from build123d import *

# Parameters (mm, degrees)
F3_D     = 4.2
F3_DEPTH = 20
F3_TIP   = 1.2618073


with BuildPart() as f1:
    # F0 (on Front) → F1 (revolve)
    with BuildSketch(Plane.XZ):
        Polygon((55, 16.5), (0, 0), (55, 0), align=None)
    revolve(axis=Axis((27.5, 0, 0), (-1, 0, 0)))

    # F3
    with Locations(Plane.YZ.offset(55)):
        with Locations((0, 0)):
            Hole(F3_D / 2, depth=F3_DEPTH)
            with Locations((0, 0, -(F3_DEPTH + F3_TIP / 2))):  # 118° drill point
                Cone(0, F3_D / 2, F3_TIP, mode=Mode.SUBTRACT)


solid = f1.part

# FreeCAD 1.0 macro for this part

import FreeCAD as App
import Part
import Sketcher
from FreeCAD import Vector

doc = App.newDocument("Part")
body = doc.addObject("PartDesign::Body", "Body")

# Sketch on XZ plane
sketch1 = doc.addObject("Sketcher::SketchObject", "Sketch")
body.addObject(sketch1)
sketch1.AttachmentSupport = (doc.XZ_Plane, [""])
sketch1.MapMode = "FlatFace"
sketch1.addGeometry([
    Part.LineSegment(Vector(55, 16, 0), Vector(0, 0, 0)),
    Part.LineSegment(Vector(0, 0, 0), Vector(55, 0, 0)),
    Part.LineSegment(Vector(55, 0, 0), Vector(55, 16, 0)),
], False)
sketch1.addConstraint([
    Sketcher.Constraint("Coincident", 0, 2, 1, 1),
    Sketcher.Constraint("Coincident", 1, 2, 2, 1),
    Sketcher.Constraint("Coincident", 2, 2, 0, 1),
    Sketcher.Constraint("Horizontal", 1),
    Sketcher.Constraint("Vertical", 2),
    Sketcher.Constraint("Coincident", 0, 2, -1, 1),
    Sketcher.Constraint("DistanceX", 1, 1, 1, 2, 55.0),
    Sketcher.Constraint("DistanceY", 2, 1, 2, 2, 16.5),
])
revolution = doc.addObject("PartDesign::Revolution", "Revolution")
body.addObject(revolution)
revolution.Profile = sketch1
revolution.ReferenceAxis = (sketch1, ["H_Axis"])
revolution.Angle = 360

# Sketch on YZ plane
sketch2 = doc.addObject("Sketcher::SketchObject", "Sketch001")
body.addObject(sketch2)
sketch2.AttachmentSupport = (doc.YZ_Plane, [""])
sketch2.MapMode = "FlatFace"
sketch2.AttachmentOffset = App.Placement(Vector(0, 0, 55), App.Rotation())
sketch2.addGeometry(Part.Circle(Vector(0, 0, 0), Vector(0, 0, 1), 2.1), False)
sketch2.addConstraint([
    Sketcher.Constraint("Coincident", 0, 3, -1, 1),
    Sketcher.Constraint("Diameter", 0, 4.2),
])
doc.recompute()
hole = doc.addObject("PartDesign::Hole", "Hole")
body.addObject(hole)
hole.Profile = sketch2
hole.ThreadType = "None"
hole.Diameter = 4.2
hole.DepthType = "Dimension"
hole.Depth = 20
hole.DrillPoint = "Angled"
hole.DrillPointAngle = 118

doc.recompute()
